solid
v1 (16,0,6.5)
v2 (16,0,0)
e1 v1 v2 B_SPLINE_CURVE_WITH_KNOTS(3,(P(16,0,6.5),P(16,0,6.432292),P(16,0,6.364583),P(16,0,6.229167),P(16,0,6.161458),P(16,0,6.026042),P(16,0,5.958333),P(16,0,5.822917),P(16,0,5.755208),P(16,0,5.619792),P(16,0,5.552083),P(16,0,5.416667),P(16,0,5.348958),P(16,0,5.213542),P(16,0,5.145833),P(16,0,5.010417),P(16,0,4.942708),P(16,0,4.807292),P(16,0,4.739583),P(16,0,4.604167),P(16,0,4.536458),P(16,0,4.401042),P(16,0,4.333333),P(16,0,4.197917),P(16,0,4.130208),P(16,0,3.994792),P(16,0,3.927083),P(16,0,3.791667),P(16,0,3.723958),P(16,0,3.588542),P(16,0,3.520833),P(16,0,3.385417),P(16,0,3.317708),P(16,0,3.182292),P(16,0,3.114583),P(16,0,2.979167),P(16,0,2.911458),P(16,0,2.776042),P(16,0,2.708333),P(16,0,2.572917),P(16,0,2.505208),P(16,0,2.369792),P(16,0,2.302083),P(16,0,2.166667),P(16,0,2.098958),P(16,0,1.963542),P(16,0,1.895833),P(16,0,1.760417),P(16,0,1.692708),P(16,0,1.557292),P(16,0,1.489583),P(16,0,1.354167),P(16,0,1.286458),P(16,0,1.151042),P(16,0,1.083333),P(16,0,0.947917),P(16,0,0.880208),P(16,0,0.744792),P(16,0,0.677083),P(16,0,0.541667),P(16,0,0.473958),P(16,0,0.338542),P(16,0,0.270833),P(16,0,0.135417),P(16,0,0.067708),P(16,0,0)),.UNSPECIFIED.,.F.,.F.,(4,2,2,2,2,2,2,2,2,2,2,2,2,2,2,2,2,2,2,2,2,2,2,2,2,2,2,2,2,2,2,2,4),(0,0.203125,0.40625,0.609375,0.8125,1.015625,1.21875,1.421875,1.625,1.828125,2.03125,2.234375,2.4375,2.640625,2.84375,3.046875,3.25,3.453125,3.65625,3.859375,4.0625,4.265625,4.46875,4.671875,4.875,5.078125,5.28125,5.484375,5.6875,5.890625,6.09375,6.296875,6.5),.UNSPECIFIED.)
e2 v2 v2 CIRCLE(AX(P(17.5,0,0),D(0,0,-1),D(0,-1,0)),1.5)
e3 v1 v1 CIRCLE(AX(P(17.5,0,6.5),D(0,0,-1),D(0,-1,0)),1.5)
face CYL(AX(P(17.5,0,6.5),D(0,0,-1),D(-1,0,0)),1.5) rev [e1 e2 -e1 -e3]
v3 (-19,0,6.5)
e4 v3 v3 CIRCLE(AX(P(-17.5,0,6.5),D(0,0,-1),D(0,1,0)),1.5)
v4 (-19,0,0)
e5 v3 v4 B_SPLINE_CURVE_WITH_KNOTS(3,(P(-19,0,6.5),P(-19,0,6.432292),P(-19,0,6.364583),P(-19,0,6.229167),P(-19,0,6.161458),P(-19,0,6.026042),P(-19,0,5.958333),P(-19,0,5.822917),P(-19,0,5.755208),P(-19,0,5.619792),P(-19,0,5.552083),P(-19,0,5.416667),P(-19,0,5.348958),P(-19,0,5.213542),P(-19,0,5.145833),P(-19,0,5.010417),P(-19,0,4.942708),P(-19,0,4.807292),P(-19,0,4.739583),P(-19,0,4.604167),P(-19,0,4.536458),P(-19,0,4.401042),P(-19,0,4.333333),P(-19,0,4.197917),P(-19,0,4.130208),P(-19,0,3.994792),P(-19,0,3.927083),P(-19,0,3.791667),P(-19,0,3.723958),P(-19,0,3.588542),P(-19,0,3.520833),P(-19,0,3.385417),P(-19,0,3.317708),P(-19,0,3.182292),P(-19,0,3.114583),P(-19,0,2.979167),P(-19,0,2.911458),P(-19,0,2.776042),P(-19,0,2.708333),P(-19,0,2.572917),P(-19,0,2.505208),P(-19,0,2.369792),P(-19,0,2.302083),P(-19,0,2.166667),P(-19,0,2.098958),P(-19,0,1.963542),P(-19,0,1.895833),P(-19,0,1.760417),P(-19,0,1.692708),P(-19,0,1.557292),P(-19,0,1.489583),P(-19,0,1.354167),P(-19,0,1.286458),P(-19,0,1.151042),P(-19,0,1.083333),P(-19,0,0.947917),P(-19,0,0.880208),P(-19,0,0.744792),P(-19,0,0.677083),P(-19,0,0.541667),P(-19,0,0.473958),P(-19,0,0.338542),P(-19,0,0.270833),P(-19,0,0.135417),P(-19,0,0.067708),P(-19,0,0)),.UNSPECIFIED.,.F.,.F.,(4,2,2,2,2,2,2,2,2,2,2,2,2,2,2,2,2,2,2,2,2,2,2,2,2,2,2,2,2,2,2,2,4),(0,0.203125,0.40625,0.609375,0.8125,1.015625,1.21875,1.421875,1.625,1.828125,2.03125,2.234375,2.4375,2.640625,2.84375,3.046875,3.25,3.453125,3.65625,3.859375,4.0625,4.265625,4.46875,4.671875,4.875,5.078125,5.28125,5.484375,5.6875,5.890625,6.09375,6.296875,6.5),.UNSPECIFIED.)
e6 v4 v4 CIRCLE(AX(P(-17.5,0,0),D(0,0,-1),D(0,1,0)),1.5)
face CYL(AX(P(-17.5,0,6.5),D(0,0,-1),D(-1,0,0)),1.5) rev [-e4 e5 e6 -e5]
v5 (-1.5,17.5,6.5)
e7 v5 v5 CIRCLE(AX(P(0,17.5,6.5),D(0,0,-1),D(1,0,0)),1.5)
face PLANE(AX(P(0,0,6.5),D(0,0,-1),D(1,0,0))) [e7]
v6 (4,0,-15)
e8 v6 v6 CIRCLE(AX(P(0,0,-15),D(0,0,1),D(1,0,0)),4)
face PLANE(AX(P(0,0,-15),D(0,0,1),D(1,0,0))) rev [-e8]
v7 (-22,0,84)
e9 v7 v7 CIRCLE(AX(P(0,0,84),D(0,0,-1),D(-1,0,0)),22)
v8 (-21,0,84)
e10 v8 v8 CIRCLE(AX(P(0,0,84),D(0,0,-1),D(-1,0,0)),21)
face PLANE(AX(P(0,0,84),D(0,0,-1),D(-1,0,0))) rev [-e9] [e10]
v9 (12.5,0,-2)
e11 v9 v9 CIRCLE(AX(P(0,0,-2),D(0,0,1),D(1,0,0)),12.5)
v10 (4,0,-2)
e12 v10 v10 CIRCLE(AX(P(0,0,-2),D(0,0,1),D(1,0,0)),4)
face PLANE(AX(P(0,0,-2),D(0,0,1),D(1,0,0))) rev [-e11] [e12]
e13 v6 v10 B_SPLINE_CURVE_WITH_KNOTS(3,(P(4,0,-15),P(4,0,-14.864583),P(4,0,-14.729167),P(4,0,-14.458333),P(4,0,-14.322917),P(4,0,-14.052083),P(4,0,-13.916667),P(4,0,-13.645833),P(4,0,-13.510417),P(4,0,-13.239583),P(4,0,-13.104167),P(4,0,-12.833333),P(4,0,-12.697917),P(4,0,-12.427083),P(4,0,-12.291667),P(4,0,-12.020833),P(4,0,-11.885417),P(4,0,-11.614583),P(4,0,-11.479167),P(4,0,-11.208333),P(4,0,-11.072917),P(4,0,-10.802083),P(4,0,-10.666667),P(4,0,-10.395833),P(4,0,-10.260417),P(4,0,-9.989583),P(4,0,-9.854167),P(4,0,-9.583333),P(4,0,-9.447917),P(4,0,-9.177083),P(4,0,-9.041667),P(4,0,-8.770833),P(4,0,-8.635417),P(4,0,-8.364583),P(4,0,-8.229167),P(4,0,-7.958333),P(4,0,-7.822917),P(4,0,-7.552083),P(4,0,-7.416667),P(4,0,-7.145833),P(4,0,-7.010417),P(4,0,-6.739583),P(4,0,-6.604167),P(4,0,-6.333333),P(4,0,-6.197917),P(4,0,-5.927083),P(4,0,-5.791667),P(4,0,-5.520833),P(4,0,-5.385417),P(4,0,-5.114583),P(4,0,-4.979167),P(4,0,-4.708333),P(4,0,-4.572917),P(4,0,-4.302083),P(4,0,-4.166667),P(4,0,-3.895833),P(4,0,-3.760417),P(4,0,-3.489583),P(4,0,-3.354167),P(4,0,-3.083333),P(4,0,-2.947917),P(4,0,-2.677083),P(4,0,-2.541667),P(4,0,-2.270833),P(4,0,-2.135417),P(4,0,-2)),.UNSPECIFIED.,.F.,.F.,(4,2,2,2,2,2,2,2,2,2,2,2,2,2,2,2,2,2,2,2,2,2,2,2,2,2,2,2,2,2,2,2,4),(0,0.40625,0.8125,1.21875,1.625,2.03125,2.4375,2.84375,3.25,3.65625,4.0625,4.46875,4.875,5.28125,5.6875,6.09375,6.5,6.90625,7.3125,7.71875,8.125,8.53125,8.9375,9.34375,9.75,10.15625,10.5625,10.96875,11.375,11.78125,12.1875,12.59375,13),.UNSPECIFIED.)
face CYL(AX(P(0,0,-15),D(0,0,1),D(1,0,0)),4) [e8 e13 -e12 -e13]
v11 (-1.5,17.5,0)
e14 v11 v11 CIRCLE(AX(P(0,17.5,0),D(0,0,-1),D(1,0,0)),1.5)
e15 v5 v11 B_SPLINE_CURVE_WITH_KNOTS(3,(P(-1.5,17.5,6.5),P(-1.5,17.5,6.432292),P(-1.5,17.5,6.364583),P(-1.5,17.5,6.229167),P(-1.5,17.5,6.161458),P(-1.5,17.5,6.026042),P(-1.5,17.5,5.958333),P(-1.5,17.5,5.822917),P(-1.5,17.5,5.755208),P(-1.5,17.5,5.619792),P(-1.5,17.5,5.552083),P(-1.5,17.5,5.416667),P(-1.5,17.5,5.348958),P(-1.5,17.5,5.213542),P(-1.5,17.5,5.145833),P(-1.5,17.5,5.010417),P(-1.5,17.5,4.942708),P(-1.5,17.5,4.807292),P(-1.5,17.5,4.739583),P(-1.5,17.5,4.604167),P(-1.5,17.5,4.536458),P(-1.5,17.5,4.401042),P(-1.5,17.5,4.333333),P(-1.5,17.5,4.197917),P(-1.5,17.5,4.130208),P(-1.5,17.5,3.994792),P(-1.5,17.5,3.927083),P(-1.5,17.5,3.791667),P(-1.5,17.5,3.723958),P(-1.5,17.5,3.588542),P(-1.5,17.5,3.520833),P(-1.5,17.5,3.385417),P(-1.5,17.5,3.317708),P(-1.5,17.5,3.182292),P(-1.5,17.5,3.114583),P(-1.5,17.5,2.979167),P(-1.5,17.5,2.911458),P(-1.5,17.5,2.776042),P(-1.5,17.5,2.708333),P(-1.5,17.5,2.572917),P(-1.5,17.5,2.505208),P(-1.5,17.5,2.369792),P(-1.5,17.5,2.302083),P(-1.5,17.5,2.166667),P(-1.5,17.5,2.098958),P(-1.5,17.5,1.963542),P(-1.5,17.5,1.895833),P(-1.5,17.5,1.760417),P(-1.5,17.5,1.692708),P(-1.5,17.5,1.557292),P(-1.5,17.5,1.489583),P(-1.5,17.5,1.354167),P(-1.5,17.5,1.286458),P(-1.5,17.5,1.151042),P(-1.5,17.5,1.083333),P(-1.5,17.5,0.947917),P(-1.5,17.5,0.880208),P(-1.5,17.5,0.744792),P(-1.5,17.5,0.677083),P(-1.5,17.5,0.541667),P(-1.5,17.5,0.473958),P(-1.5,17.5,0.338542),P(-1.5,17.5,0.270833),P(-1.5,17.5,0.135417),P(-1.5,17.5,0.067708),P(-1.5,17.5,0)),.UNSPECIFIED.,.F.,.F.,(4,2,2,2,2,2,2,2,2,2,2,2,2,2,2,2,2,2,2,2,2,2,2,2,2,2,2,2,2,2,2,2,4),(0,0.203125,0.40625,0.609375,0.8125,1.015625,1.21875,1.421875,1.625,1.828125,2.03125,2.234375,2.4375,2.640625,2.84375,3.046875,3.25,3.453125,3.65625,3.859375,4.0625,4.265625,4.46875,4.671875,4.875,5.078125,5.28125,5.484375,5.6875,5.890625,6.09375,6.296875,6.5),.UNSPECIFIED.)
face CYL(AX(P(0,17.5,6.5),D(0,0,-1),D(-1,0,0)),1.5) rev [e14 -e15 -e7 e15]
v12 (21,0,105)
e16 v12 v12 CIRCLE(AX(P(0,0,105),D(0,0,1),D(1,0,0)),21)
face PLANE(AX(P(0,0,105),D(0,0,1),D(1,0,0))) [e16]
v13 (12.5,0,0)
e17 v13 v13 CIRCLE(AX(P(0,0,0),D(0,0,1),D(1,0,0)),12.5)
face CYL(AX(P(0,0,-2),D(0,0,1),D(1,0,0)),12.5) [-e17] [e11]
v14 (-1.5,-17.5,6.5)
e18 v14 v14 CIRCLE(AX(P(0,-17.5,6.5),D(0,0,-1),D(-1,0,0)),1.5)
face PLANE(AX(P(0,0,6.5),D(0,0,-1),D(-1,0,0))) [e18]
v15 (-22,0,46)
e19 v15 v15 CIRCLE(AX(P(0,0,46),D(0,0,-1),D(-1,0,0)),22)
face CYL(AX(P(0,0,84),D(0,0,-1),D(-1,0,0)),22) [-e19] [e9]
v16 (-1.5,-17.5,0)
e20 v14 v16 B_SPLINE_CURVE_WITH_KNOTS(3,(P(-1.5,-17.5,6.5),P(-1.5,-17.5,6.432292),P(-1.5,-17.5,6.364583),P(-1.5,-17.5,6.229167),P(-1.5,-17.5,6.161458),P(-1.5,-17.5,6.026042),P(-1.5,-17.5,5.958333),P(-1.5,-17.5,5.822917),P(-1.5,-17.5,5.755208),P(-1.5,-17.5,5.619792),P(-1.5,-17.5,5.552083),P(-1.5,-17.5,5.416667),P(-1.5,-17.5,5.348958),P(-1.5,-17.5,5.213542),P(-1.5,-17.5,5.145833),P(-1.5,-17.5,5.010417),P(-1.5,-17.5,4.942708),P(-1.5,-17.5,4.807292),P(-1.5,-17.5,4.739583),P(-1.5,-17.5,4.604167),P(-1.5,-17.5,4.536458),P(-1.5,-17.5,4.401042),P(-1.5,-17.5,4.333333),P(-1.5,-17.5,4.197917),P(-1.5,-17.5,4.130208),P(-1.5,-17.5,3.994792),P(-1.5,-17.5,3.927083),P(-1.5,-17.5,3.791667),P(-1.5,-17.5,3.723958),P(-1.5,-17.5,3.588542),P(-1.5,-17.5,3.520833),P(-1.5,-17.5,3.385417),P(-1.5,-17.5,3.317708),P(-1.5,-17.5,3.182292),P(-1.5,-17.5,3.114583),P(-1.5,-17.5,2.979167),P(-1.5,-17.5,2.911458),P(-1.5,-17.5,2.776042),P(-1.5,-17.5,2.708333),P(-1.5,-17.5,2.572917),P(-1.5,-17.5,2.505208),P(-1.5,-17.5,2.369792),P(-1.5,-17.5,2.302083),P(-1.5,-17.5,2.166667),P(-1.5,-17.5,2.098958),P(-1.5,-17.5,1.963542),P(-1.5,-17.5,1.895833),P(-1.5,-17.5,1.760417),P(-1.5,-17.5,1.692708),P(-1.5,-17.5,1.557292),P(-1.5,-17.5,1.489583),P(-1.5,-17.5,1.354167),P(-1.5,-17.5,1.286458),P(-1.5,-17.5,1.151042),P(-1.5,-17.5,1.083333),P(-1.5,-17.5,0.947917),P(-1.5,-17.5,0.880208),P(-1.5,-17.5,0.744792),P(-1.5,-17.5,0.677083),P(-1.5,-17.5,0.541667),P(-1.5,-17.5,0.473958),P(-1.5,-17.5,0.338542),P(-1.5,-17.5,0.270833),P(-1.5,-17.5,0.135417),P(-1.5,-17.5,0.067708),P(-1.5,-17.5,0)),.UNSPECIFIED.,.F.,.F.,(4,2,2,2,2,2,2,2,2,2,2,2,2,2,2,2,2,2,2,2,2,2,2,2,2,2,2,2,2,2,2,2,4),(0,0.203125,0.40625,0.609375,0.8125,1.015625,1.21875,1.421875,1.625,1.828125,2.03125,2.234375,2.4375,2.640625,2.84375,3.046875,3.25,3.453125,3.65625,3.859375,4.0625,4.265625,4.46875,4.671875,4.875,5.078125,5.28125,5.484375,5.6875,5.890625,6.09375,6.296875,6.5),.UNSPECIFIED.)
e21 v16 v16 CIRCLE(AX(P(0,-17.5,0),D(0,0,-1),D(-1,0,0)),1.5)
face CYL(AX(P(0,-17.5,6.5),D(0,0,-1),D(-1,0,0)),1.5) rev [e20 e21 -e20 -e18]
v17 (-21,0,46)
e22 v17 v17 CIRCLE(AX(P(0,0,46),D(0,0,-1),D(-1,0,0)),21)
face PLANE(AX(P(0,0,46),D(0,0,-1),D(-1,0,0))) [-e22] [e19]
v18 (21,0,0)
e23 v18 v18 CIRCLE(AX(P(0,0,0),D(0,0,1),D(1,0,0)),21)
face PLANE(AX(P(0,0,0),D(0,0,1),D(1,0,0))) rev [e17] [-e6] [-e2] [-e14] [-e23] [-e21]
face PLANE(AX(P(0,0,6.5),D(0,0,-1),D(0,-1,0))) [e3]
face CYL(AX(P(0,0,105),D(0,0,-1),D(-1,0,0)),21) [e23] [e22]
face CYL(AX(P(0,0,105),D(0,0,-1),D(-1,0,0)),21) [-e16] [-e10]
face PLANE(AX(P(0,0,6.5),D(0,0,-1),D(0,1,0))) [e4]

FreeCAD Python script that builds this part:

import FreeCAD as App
import Part
import Sketcher
from FreeCAD import Vector

doc = App.newDocument("Part")
params = doc.addObject("Spreadsheet::Sheet", "Params")
for row, (alias, value) in enumerate([
    ("sketch1_diameter", "42 mm"),
    ("pad1_length", "105 mm"),
    ("sketch2_diameter", "44 mm"),
    ("pad2_length", "38 mm"),
    ("sketch3_diameter", "25 mm"),
    ("pad3_length", "2 mm"),
    ("sketch4_diameter", "8 mm"),
    ("pad4_length", "13 mm"),
    ("sketch5_diameter", "3 mm"),
    ("pocket1_length", "6.5 mm"),
], start=1):
    params.set(f"A{row}", alias)
    params.set(f"B{row}", "=" + value)
    params.setAlias(f"B{row}", alias)

body = doc.addObject("PartDesign::Body", "Body")

# Sketch on XY plane
sketch1 = body.newObject("Sketcher::SketchObject", "Sketch")
sketch1.AttachmentSupport = (doc.getObject("XY_Plane"), [""])
sketch1.MapMode = "FlatFace"
sketch1.addGeometry(Part.Circle(Vector(0, 0, 0), Vector(0, 0, 1), 21), False)
sketch1.addConstraint([
    Sketcher.Constraint("Coincident", 0, 3, -1, 1),
    Sketcher.Constraint("Diameter", 0, 42.0),
])
sketch1.setExpression("Constraints[1]", "Params.sketch1_diameter")
pad1 = body.newObject("PartDesign::Pad", "Pad")
pad1.Profile = sketch1
pad1.setExpression("Length", "Params.pad1_length")

# Sketch on XY plane
sketch2 = body.newObject("Sketcher::SketchObject", "Sketch001")
sketch2.AttachmentSupport = (doc.getObject("XY_Plane"), [""])
sketch2.MapMode = "FlatFace"
sketch2.AttachmentOffset = App.Placement(Vector(0, 0, 46), App.Rotation())
sketch2.addGeometry(Part.Circle(Vector(0, 0, 0), Vector(0, 0, 1), 22), False)
sketch2.addConstraint([
    Sketcher.Constraint("Coincident", 0, 3, -1, 1),
    Sketcher.Constraint("Diameter", 0, 44.0),
])
sketch2.setExpression("Constraints[1]", "Params.sketch2_diameter")
pad2 = body.newObject("PartDesign::Pad", "Pad001")
pad2.Profile = sketch2
pad2.setExpression("Length", "Params.pad2_length")

# Sketch on XY plane
sketch3 = body.newObject("Sketcher::SketchObject", "Sketch002")
sketch3.AttachmentSupport = (doc.getObject("XY_Plane"), [""])
sketch3.MapMode = "FlatFace"
sketch3.addGeometry(Part.Circle(Vector(0, 0, 0), Vector(0, 0, 1), 12), False)
sketch3.addConstraint([
    Sketcher.Constraint("Coincident", 0, 3, -1, 1),
    Sketcher.Constraint("Diameter", 0, 25.0),
])
sketch3.setExpression("Constraints[1]", "Params.sketch3_diameter")
pad3 = body.newObject("PartDesign::Pad", "Pad002")
pad3.Profile = sketch3
pad3.setExpression("Length", "Params.pad3_length")
pad3.Reversed = True

# Sketch on XY plane
sketch4 = body.newObject("Sketcher::SketchObject", "Sketch003")
sketch4.AttachmentSupport = (doc.getObject("XY_Plane"), [""])
sketch4.MapMode = "FlatFace"
sketch4.AttachmentOffset = App.Placement(Vector(0, 0, -2), App.Rotation())
sketch4.addGeometry(Part.Circle(Vector(0, 0, 0), Vector(0, 0, 1), 4), False)
sketch4.addConstraint([
    Sketcher.Constraint("Coincident", 0, 3, -1, 1),
    Sketcher.Constraint("Diameter", 0, 8.0),
])
sketch4.setExpression("Constraints[1]", "Params.sketch4_diameter")
pad4 = body.newObject("PartDesign::Pad", "Pad003")
pad4.Profile = sketch4
pad4.setExpression("Length", "Params.pad4_length")
pad4.Reversed = True

# Sketch on XY plane
sketch5 = body.newObject("Sketcher::SketchObject", "Sketch004")
sketch5.AttachmentSupport = (doc.getObject("XY_Plane"), [""])
sketch5.MapMode = "FlatFace"
sketch5.addGeometry(Part.Circle(Vector(0, -17.5, 0), Vector(0, 0, 1), 1.5), False)
sketch5.addConstraint([
    Sketcher.Constraint("PointOnObject", 0, 3, -2),
    Sketcher.Constraint("Diameter", 0, 3.0),
    Sketcher.Constraint("DistanceY", 0, 3, -1, 1, 17.5),
])
sketch5.setExpression("Constraints[1]", "Params.sketch5_diameter")
pocket1 = body.newObject("PartDesign::Pocket", "Pocket")
pocket1.Profile = sketch5
pocket1.setExpression("Length", "Params.pocket1_length")
pocket1.Reversed = True
doc.recompute()

polarpattern = body.newObject("PartDesign::PolarPattern", "PolarPattern")
polarpattern.Originals = [pocket1]
polarpattern.Axis = (doc.getObject("Z_Axis"), [""])
polarpattern.Angle = 360
polarpattern.Occurrences = 4
body.Tip = polarpattern

doc.recompute()
